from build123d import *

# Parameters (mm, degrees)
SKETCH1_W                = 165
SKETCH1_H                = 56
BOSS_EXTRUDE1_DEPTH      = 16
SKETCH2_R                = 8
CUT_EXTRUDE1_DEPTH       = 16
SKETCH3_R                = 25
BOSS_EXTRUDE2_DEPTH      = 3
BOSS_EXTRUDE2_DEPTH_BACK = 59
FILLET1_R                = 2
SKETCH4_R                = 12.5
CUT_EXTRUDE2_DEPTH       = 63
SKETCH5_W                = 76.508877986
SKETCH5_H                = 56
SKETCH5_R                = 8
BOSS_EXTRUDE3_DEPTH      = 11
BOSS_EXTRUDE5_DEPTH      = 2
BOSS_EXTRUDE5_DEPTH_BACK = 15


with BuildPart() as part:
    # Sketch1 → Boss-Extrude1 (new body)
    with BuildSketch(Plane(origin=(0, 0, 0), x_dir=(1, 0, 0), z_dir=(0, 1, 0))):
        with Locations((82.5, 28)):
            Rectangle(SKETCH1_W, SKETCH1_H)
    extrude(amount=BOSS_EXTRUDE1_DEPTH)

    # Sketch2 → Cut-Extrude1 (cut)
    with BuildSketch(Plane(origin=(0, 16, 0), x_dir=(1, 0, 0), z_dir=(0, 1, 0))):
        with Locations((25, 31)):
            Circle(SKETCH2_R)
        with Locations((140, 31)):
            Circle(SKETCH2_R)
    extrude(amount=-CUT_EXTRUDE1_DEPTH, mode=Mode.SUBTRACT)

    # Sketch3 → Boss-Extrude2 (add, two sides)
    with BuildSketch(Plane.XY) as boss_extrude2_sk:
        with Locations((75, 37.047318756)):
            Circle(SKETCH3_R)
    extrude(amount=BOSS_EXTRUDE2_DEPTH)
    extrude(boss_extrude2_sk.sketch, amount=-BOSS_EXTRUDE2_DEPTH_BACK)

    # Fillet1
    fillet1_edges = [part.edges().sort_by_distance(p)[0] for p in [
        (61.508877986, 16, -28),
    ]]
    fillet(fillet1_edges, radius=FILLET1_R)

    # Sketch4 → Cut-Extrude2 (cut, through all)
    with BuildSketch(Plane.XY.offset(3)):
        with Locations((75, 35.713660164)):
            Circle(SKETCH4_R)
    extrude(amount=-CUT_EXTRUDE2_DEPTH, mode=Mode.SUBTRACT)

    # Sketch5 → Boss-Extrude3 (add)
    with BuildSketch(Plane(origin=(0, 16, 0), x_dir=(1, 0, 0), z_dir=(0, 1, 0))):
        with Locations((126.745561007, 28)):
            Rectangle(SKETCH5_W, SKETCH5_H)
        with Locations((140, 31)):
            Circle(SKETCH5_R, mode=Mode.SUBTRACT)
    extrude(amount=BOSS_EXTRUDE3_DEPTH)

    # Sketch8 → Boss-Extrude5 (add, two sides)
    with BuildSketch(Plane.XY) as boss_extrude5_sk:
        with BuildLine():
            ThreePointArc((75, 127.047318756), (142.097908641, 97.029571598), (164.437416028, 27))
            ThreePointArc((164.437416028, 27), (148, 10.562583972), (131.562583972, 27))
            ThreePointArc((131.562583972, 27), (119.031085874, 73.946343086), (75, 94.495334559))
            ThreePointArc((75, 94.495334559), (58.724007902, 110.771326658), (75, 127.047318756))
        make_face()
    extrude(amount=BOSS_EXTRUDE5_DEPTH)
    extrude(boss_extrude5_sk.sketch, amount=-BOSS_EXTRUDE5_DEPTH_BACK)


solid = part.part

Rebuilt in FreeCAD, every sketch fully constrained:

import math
import FreeCAD as App
import Part
import Sketcher


def edges_at(feature, points):
    """Names of the edges that pass closest to the given points."""
    edges = feature.Shape.Edges
    near = lambda p: min(range(len(edges)), key=lambda i: edges[i].distToShape(Part.Vertex(*p))[0])
    return sorted({f"Edge{near(p) + 1}" for p in points})

doc = App.newDocument("Part")
body = doc.addObject("PartDesign::Body", "Body")

# Sketch on XZ plane
sketch1 = doc.addObject("Sketcher::SketchObject", "Sketch")
body.addObject(sketch1)
sketch1.AttachmentSupport = (doc.XZ_Plane, [""])
sketch1.MapMode = "FlatFace"
sketch1.addGeometry(Part.LineSegment(App.Vector(0, -56, 0), App.Vector(0, 0, 0)), False)
sketch1.addGeometry(Part.LineSegment(App.Vector(0, 0, 0), App.Vector(165, 0, 0)), False)
sketch1.addGeometry(Part.LineSegment(App.Vector(165, 0, 0), App.Vector(165, -56, 0)), False)
sketch1.addGeometry(Part.LineSegment(App.Vector(165, -56, 0), App.Vector(0, -56, 0)), False)
sketch1.addConstraint(Sketcher.Constraint("Coincident", 0, 2, 1, 1))
sketch1.addConstraint(Sketcher.Constraint("Coincident", 1, 2, 2, 1))
sketch1.addConstraint(Sketcher.Constraint("Coincident", 2, 2, 3, 1))
sketch1.addConstraint(Sketcher.Constraint("Coincident", 3, 2, 0, 1))
sketch1.addConstraint(Sketcher.Constraint("Vertical", 0))
sketch1.addConstraint(Sketcher.Constraint("Horizontal", 1))
sketch1.addConstraint(Sketcher.Constraint("Vertical", 2))
sketch1.addConstraint(Sketcher.Constraint("Horizontal", 3))
sketch1.addConstraint(Sketcher.Constraint("Coincident", 0, 2, -1, 1))
sketch1.addConstraint(Sketcher.Constraint("DistanceX", 1, 1, 1, 2, 165.0))
sketch1.addConstraint(Sketcher.Constraint("DistanceY", 0, 1, 0, 2, 56.0))
pad1 = doc.addObject("PartDesign::Pad", "Pad")
body.addObject(pad1)
pad1.Profile = sketch1
pad1.Length = 16
pad1.Reversed = True

# Sketch on XZ plane
sketch2 = doc.addObject("Sketcher::SketchObject", "Sketch001")
body.addObject(sketch2)
sketch2.AttachmentSupport = (doc.XZ_Plane, [""])
sketch2.MapMode = "FlatFace"
sketch2.AttachmentOffset = App.Placement(App.Vector(0, 0, -16), App.Rotation())
sketch2.addGeometry(Part.Circle(App.Vector(25, -31, 0), App.Vector(0, 0, 1), 8), False)
sketch2.addGeometry(Part.Circle(App.Vector(140, -31, 0), App.Vector(0, 0, 1), 8), False)
sketch2.addConstraint(Sketcher.Constraint("Equal", 0, 1))
sketch2.addConstraint(Sketcher.Constraint("Horizontal", 0, 3, 1, 3))
sketch2.addConstraint(Sketcher.Constraint("Diameter", 0, 16.0))
sketch2.addConstraint(Sketcher.Constraint("DistanceX", -1, 1, 0, 3, 25.0))
sketch2.addConstraint(Sketcher.Constraint("DistanceY", 0, 3, -1, 1, 31.0))
sketch2.addConstraint(Sketcher.Constraint("DistanceX", -1, 1, 1, 3, 140.0))
pocket1 = doc.addObject("PartDesign::Pocket", "Pocket")
body.addObject(pocket1)
pocket1.Profile = sketch2
pocket1.Length = 16
pocket1.Reversed = True

# Sketch on XY plane
sketch3 = doc.addObject("Sketcher::SketchObject", "Sketch002")
body.addObject(sketch3)
sketch3.AttachmentSupport = (doc.XY_Plane, [""])
sketch3.MapMode = "FlatFace"
sketch3.addGeometry(Part.Circle(App.Vector(75, 37.047319, 0), App.Vector(0, 0, 1), 25), False)
sketch3.addConstraint(Sketcher.Constraint("Diameter", 0, 50.0))
sketch3.addConstraint(Sketcher.Constraint("DistanceX", -1, 1, 0, 3, 75.0))
sketch3.addConstraint(Sketcher.Constraint("DistanceY", -1, 1, 0, 3, 37.047319))
pad2 = doc.addObject("PartDesign::Pad", "Pad001")
body.addObject(pad2)
pad2.Profile = sketch3
pad2.Type = "TwoLengths"
pad2.Length = 3
pad2.Length2 = 59
doc.recompute()

fillet = doc.addObject("PartDesign::Fillet", "Fillet")
body.addObject(fillet)
fillet.Base = (pad2, edges_at(pad2, [(61.509, 16, -28)]))
fillet.Radius = 2

# Sketch on XY plane
sketch4 = doc.addObject("Sketcher::SketchObject", "Sketch003")
body.addObject(sketch4)
sketch4.AttachmentSupport = (doc.XY_Plane, [""])
sketch4.MapMode = "FlatFace"
sketch4.AttachmentOffset = App.Placement(App.Vector(0, 0, 3), App.Rotation())
sketch4.addGeometry(Part.Circle(App.Vector(75, 35.71366, 0), App.Vector(0, 0, 1), 12.5), False)
sketch4.addConstraint(Sketcher.Constraint("Diameter", 0, 25.0))
sketch4.addConstraint(Sketcher.Constraint("DistanceX", -1, 1, 0, 3, 75.0))
sketch4.addConstraint(Sketcher.Constraint("DistanceY", -1, 1, 0, 3, 35.71366))
pocket2 = doc.addObject("PartDesign::Pocket", "Pocket001")
body.addObject(pocket2)
pocket2.Profile = sketch4
pocket2.Type = "ThroughAll"

# Sketch on XZ plane
sketch5 = doc.addObject("Sketcher::SketchObject", "Sketch004")
body.addObject(sketch5)
sketch5.AttachmentSupport = (doc.XZ_Plane, [""])
sketch5.MapMode = "FlatFace"
sketch5.AttachmentOffset = App.Placement(App.Vector(0, 0, -16), App.Rotation())
sketch5.addGeometry(Part.LineSegment(App.Vector(88.491122, -56, 0), App.Vector(88.491122, 0, 0)), False)
sketch5.addGeometry(Part.LineSegment(App.Vector(88.491122, 0, 0), App.Vector(165, 0, 0)), False)
sketch5.addGeometry(Part.LineSegment(App.Vector(165, 0, 0), App.Vector(165, -56, 0)), False)
sketch5.addGeometry(Part.LineSegment(App.Vector(165, -56, 0), App.Vector(88.491122, -56, 0)), False)
sketch5.addGeometry(Part.Circle(App.Vector(140, -31, 0), App.Vector(0, 0, 1), 8), False)
sketch5.addConstraint(Sketcher.Constraint("Coincident", 0, 2, 1, 1))
sketch5.addConstraint(Sketcher.Constraint("Coincident", 1, 2, 2, 1))
sketch5.addConstraint(Sketcher.Constraint("Coincident", 2, 2, 3, 1))
sketch5.addConstraint(Sketcher.Constraint("Coincident", 3, 2, 0, 1))
sketch5.addConstraint(Sketcher.Constraint("Vertical", 0))
sketch5.addConstraint(Sketcher.Constraint("Horizontal", 1))
sketch5.addConstraint(Sketcher.Constraint("Vertical", 2))
sketch5.addConstraint(Sketcher.Constraint("Horizontal", 3))
sketch5.addConstraint(Sketcher.Constraint("PointOnObject", 0, 2, -1))
sketch5.addConstraint(Sketcher.Constraint("Diameter", 4, 16.0))
sketch5.addConstraint(Sketcher.Constraint("DistanceY", 0, 1, 0, 2, 56.0))
sketch5.addConstraint(Sketcher.Constraint("DistanceX", -1, 1, 4, 3, 140.0))
sketch5.addConstraint(Sketcher.Constraint("DistanceY", 4, 3, -1, 1, 31.0))
sketch5.addConstraint(Sketcher.Constraint("DistanceX", -1, 1, 1, 2, 165.0))
sketch5.addConstraint(Sketcher.Constraint("DistanceX", 1, 1, 1, 2, 76.508878))
pad3 = doc.addObject("PartDesign::Pad", "Pad002")
body.addObject(pad3)
pad3.Profile = sketch5
pad3.Length = 11
pad3.Reversed = True

# Sketch on XY plane
sketch6 = doc.addObject("Sketcher::SketchObject", "Sketch005")
body.addObject(sketch6)
sketch6.AttachmentSupport = (doc.XY_Plane, [""])
sketch6.MapMode = "FlatFace"
sketch6.addGeometry(Part.ArcOfCircle(Part.Circle(App.Vector(75, 37.047319, 0), App.Vector(0, 0, 1), 90), math.radians(-6.409683), math.radians(90)), False)
sketch6.addGeometry(Part.ArcOfCircle(Part.Circle(App.Vector(75, 110.771327, 0), App.Vector(0, 0, 1), 16.275992), math.radians(90), math.radians(270)), False)
sketch6.addGeometry(Part.ArcOfCircle(Part.Circle(App.Vector(75, 37.047319, 0), App.Vector(0, 0, 1), 57.448016), math.radians(-10.072495), math.radians(90)), False)
sketch6.addGeometry(Part.ArcOfCircle(Part.Circle(App.Vector(148, 27, 0), App.Vector(0, 0, 1), 16.437416), math.radians(180), math.radians(360)), False)
sketch6.addConstraint(Sketcher.Constraint("Tangent", 0, 2, 1, 1))
sketch6.addConstraint(Sketcher.Constraint("Tangent", 1, 2, 2, 2))
sketch6.addConstraint(Sketcher.Constraint("Coincident", 2, 1, 3, 1))
sketch6.addConstraint(Sketcher.Constraint("Coincident", 3, 2, 0, 1))
sketch6.addConstraint(Sketcher.Constraint("Coincident", 2, 3, 0, 3))
sketch6.addConstraint(Sketcher.Constraint("Horizontal", 3, 3, 2, 1))
sketch6.addConstraint(Sketcher.Constraint("Horizontal", 2, 1, 3, 2))
sketch6.addConstraint(Sketcher.Constraint("Vertical", 0, 3, 1, 3))
sketch6.addConstraint(Sketcher.Constraint("Radius", 0, 90.0))
sketch6.addConstraint(Sketcher.Constraint("DistanceX", -1, 1, 0, 3, 75.0))
sketch6.addConstraint(Sketcher.Constraint("DistanceX", -1, 1, 3, 3, 148.0))
sketch6.addConstraint(Sketcher.Constraint("DistanceY", -1, 1, 3, 3, 27.0))
sketch6.addConstraint(Sketcher.Constraint("Radius", 1, 16.275992))
pad4 = doc.addObject("PartDesign::Pad", "Pad003")
body.addObject(pad4)
pad4.Profile = sketch6
pad4.Type = "TwoLengths"
pad4.Length = 2
pad4.Length2 = 15

doc.recompute()
